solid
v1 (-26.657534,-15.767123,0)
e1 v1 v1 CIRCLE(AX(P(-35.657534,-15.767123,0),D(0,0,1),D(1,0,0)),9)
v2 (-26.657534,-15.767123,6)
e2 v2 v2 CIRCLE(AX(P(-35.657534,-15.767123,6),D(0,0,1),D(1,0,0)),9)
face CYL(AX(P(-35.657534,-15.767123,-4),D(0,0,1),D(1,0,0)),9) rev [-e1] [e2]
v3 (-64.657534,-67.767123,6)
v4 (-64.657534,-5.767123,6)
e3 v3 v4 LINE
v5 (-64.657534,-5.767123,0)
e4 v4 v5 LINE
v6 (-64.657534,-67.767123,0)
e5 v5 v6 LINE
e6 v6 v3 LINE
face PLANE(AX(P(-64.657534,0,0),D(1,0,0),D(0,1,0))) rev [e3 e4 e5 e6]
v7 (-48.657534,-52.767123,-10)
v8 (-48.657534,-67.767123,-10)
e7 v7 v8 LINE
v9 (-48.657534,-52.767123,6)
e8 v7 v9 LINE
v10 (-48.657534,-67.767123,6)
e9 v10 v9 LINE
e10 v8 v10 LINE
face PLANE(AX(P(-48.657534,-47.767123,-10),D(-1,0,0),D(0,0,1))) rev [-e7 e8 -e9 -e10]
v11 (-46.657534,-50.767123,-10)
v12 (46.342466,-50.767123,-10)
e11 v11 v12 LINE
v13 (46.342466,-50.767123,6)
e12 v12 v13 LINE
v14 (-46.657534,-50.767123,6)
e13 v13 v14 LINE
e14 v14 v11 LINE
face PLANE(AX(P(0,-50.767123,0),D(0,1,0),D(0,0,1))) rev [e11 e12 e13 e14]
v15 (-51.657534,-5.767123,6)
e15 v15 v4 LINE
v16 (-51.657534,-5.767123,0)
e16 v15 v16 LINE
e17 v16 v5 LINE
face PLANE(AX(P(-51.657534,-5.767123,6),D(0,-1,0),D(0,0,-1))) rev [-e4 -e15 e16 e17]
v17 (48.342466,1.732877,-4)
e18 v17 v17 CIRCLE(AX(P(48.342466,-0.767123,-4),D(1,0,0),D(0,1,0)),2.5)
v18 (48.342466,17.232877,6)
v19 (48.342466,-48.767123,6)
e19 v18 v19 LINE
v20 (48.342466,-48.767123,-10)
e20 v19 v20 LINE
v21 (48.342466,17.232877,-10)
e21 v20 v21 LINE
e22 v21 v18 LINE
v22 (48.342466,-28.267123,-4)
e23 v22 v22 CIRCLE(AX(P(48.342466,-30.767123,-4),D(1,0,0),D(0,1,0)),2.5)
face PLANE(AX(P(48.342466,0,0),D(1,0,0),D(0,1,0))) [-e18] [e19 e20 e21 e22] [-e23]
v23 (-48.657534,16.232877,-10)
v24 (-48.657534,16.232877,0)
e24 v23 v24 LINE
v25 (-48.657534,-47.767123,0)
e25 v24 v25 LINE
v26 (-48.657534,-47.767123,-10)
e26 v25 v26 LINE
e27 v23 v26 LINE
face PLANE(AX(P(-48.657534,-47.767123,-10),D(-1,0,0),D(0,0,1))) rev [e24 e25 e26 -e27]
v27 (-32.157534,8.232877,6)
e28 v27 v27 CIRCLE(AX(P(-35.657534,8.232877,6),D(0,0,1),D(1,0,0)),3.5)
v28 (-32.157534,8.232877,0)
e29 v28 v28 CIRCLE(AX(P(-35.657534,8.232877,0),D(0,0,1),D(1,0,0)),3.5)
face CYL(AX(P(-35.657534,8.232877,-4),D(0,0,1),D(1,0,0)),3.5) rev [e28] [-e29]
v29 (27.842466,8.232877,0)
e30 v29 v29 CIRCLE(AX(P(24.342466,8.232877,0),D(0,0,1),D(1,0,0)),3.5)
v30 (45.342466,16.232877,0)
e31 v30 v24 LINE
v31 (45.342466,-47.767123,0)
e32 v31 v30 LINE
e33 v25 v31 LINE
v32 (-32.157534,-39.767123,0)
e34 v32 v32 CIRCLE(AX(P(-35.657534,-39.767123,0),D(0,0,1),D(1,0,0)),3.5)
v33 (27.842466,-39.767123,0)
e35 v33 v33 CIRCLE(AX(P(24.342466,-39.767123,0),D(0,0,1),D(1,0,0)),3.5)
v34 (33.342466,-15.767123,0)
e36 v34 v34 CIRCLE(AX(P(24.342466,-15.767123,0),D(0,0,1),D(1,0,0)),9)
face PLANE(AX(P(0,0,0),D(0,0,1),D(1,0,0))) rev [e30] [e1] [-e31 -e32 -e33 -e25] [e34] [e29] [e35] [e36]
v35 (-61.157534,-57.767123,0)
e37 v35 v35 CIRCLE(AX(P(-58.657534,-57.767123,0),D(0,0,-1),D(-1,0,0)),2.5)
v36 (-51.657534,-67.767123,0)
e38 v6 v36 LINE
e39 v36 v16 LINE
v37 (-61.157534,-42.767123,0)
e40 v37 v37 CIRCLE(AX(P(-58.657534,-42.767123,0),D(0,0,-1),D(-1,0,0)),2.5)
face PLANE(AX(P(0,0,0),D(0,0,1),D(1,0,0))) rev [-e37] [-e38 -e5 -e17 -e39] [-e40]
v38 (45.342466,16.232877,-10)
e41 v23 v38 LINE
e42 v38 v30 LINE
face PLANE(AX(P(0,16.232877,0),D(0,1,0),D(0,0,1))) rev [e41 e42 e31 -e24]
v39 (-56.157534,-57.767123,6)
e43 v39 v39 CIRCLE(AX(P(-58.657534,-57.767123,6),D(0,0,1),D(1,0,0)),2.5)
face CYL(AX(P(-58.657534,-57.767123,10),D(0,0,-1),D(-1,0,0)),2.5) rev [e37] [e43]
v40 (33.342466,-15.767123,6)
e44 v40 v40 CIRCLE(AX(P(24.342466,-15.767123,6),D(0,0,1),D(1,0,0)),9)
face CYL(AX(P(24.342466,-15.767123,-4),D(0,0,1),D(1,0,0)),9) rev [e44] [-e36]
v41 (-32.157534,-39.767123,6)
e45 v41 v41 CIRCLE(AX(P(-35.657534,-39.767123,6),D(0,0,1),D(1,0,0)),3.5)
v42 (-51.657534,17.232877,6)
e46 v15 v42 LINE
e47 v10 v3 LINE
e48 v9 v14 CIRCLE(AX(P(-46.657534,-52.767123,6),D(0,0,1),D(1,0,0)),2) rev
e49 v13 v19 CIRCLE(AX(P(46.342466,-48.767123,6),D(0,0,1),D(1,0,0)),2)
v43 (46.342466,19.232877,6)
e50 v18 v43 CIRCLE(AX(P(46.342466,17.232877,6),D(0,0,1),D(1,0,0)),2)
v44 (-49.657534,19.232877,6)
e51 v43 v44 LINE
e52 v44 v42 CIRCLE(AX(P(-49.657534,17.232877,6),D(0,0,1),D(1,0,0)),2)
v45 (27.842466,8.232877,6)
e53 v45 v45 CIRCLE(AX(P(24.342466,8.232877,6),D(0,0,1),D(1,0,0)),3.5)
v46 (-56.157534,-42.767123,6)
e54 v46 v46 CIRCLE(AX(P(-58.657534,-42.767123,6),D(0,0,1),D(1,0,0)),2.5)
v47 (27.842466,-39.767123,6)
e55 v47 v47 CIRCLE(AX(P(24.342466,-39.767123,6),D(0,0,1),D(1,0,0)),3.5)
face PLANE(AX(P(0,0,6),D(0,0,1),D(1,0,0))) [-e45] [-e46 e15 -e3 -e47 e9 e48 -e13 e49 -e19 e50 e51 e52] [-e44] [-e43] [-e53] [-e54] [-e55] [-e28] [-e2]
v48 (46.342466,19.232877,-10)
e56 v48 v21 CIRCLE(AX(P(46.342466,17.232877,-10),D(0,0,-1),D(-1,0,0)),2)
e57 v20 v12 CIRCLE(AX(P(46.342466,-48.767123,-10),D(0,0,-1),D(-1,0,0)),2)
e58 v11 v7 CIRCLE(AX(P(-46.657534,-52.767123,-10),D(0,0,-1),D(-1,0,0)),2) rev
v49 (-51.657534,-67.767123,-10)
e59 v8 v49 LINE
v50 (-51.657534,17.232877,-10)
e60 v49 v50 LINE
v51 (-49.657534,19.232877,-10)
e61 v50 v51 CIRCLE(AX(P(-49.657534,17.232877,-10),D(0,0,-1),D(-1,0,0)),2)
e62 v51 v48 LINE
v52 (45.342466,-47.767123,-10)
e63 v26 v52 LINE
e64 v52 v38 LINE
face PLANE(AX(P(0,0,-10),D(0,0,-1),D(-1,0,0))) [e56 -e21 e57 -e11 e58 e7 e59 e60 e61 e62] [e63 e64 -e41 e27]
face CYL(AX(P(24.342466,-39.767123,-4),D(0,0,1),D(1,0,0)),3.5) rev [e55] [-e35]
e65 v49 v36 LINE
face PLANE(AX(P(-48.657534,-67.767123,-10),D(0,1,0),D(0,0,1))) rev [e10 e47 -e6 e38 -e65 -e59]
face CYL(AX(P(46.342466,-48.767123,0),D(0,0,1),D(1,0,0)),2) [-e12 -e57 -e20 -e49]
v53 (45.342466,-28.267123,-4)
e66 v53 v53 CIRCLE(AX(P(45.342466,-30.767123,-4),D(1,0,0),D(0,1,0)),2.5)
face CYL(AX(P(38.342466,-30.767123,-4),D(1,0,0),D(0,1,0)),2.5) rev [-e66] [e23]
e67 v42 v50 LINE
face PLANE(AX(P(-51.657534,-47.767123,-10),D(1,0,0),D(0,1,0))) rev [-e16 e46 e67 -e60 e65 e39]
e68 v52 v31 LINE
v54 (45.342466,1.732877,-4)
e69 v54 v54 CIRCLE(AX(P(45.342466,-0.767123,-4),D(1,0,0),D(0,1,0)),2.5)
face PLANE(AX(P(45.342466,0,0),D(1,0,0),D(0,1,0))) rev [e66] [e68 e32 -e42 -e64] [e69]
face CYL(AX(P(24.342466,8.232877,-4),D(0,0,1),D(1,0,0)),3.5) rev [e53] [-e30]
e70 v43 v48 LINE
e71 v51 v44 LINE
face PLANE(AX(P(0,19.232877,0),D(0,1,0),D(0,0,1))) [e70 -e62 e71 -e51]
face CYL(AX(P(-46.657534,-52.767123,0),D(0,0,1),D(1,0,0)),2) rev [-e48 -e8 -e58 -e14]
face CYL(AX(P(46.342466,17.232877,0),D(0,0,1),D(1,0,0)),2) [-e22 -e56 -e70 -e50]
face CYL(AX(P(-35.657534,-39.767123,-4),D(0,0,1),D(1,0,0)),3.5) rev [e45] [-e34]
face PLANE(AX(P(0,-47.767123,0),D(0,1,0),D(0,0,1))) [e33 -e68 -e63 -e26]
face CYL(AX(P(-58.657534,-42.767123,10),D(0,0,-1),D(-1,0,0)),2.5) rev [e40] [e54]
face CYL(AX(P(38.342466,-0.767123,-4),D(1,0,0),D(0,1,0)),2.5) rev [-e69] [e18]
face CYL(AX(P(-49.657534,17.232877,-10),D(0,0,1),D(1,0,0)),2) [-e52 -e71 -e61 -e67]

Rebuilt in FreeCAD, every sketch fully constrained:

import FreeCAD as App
import Part
import Sketcher
from FreeCAD import Vector


def edges_at(feature, points):
    """Names of the edges that pass closest to the given points."""
    edges = feature.Shape.Edges
    near = lambda p: min(range(len(edges)), key=lambda i: edges[i].distToShape(Part.Vertex(*p))[0])
    return sorted({f"Edge{near(p) + 1}" for p in points})

doc = App.newDocument("Part")
params = doc.addObject("Spreadsheet::Sheet", "Params")
for row, (alias, value) in enumerate([
    ("sketch1_width", "100 mm"),
    ("sketch1_height", "64 mm"),
    ("pad1_length", "6 mm"),
    ("sketch2_diameter", "18 mm"),
    ("sketch2_diameter2", "7 mm"),
    ("pocket1_length", "10 mm"),
    ("linearpattern_pitch", "60 mm"),
    ("sketch3_width", "3 mm"),
    ("sketch3_height", "84 mm"),
    ("pad2_length", "10 mm"),
    ("sketch4_width", "6 mm"),
    ("pad3_length", "20 mm"),
    ("sketch5_width", "97 mm"),
    ("sketch5_height", "16 mm"),
    ("pad4_length", "3 mm"),
    ("linearpattern2_pitch", "67 mm"),
    ("sketch6_width", "70 mm"),
    ("sketch6_height", "16 mm"),
    ("pad5_length", "3 mm"),
    ("sketch7_height", "22 mm"),
    ("pocket2_length", "6 mm"),
    ("sketch8_width", "62 mm"),
    ("sketch8_height", "6 mm"),
    ("pad6_length", "10 mm"),
    ("sketch9_diameter", "5 mm"),
    ("pocket3_length", "10 mm"),
    ("linearpattern3_pitch", "15 mm"),
    ("fillet_radius", "2 mm"),
    ("sketch10_diameter", "5 mm"),
    ("pocket4_length", "10 mm"),
    ("linearpattern4_pitch", "30 mm"),
], start=1):
    params.set(f"A{row}", alias)
    params.set(f"B{row}", "=" + value)
    params.setAlias(f"B{row}", alias)

body = doc.addObject("PartDesign::Body", "Body")

sketch1 = doc.addObject("Sketcher::SketchObject", "Sketch")
body.addObject(sketch1)
sketch1.AttachmentSupport = (doc.XY_Plane, [""])
sketch1.MapMode = "FlatFace"
sketch1.addGeometry(Part.LineSegment(Vector(-54.657534, 16.232877, 0), Vector(-54.657534, -47.767123, 0)), False)
sketch1.addGeometry(Part.LineSegment(Vector(-54.657534, -47.767123, 0), Vector(45.342466, -47.767123, 0)), False)
sketch1.addGeometry(Part.LineSegment(Vector(45.342466, -47.767123, 0), Vector(45.342466, 16.232877, 0)), False)
sketch1.addGeometry(Part.LineSegment(Vector(45.342466, 16.232877, 0), Vector(-54.657534, 16.232877, 0)), False)
sketch1.addConstraint(Sketcher.Constraint("Coincident", 0, 2, 1, 1))
sketch1.addConstraint(Sketcher.Constraint("Coincident", 1, 2, 2, 1))
sketch1.addConstraint(Sketcher.Constraint("Coincident", 2, 2, 3, 1))
sketch1.addConstraint(Sketcher.Constraint("Coincident", 3, 2, 0, 1))
sketch1.addConstraint(Sketcher.Constraint("Vertical", 0))
sketch1.addConstraint(Sketcher.Constraint("Horizontal", 1))
sketch1.addConstraint(Sketcher.Constraint("Vertical", 2))
sketch1.addConstraint(Sketcher.Constraint("Horizontal", 3))
sketch1.addConstraint(Sketcher.Constraint("DistanceX", 1, 1, 1, 2, 100.0))
sketch1.addConstraint(Sketcher.Constraint("DistanceY", 0, 2, 0, 1, 64.0))
sketch1.addConstraint(Sketcher.Constraint("DistanceX", 0, 2, -1, 1, 54.657534))
sketch1.addConstraint(Sketcher.Constraint("DistanceY", 0, 2, -1, 1, 47.767123))
sketch1.setExpression("Constraints[8]", "Params.sketch1_width")
sketch1.setExpression("Constraints[9]", "Params.sketch1_height")
pad1 = doc.addObject("PartDesign::Pad", "Pad")
body.addObject(pad1)
pad1.Profile = sketch1
pad1.setExpression("Length", "Params.pad1_length")

sketch2 = doc.addObject("Sketcher::SketchObject", "Sketch001")
body.addObject(sketch2)
sketch2.AttachmentSupport = (doc.XY_Plane, [""])
sketch2.MapMode = "FlatFace"
sketch2.AttachmentOffset = App.Placement(Vector(0, 0, 6), App.Rotation())
sketch2.addGeometry(Part.Circle(Vector(-35.657534, -15.767123, 0), Vector(0, 0, 1), 9), False)
sketch2.addGeometry(Part.Circle(Vector(-35.657534, 8.232877, 0), Vector(0, 0, 1), 3.5), False)
sketch2.addGeometry(Part.Circle(Vector(-35.657534, -39.767123, 0), Vector(0, 0, 1), 3.5), False)
sketch2.addConstraint(Sketcher.Constraint("Equal", 1, 2))
sketch2.addConstraint(Sketcher.Constraint("Vertical", 0, 3, 1, 3))
sketch2.addConstraint(Sketcher.Constraint("Vertical", 1, 3, 2, 3))
sketch2.addConstraint(Sketcher.Constraint("Diameter", 0, 18.0))
sketch2.addConstraint(Sketcher.Constraint("Diameter", 1, 7.0))
sketch2.addConstraint(Sketcher.Constraint("DistanceY", 0, 3, 1, 3, 24.0))
sketch2.addConstraint(Sketcher.Constraint("DistanceY", 2, 3, 0, 3, 24.0))
sketch2.addConstraint(Sketcher.Constraint("DistanceX", 0, 3, -1, 1, 35.657534))
sketch2.addConstraint(Sketcher.Constraint("DistanceY", 0, 3, -1, 1, 15.767123))
sketch2.setExpression("Constraints[3]", "Params.sketch2_diameter")
sketch2.setExpression("Constraints[4]", "Params.sketch2_diameter2")
pocket1 = doc.addObject("PartDesign::Pocket", "Pocket")
body.addObject(pocket1)
pocket1.Profile = sketch2
pocket1.setExpression("Length", "Params.pocket1_length")
doc.recompute()

linearpattern = doc.addObject("PartDesign::LinearPattern", "LinearPattern")
body.addObject(linearpattern)
linearpattern.Originals = [pocket1]
linearpattern.Direction = (doc.X_Axis, [""])
linearpattern.Mode = "offset"
linearpattern.setExpression("Offset", "Params.linearpattern_pitch")
linearpattern.Occurrences = 2
body.Tip = linearpattern

sketch3 = doc.addObject("Sketcher::SketchObject", "Sketch002")
body.addObject(sketch3)
sketch3.AttachmentSupport = (doc.XY_Plane, [""])
sketch3.MapMode = "FlatFace"
sketch3.addGeometry(Part.LineSegment(Vector(-48.657534, 16.232877, 0), Vector(-48.657534, -67.767123, 0)), False)
sketch3.addGeometry(Part.LineSegment(Vector(-48.657534, -67.767123, 0), Vector(-51.657534, -67.767123, 0)), False)
sketch3.addGeometry(Part.LineSegment(Vector(-51.657534, -67.767123, 0), Vector(-51.657534, 16.232877, 0)), False)
sketch3.addGeometry(Part.LineSegment(Vector(-51.657534, 16.232877, 0), Vector(-48.657534, 16.232877, 0)), False)
sketch3.addConstraint(Sketcher.Constraint("Coincident", 0, 2, 1, 1))
sketch3.addConstraint(Sketcher.Constraint("Coincident", 1, 2, 2, 1))
sketch3.addConstraint(Sketcher.Constraint("Coincident", 2, 2, 3, 1))
sketch3.addConstraint(Sketcher.Constraint("Coincident", 3, 2, 0, 1))
sketch3.addConstraint(Sketcher.Constraint("Vertical", 0))
sketch3.addConstraint(Sketcher.Constraint("Horizontal", 1))
sketch3.addConstraint(Sketcher.Constraint("Vertical", 2))
sketch3.addConstraint(Sketcher.Constraint("Horizontal", 3))
sketch3.addConstraint(Sketcher.Constraint("DistanceX", 1, 2, 1, 1, 3.0))
sketch3.addConstraint(Sketcher.Constraint("DistanceY", 0, 2, 0, 1, 84.0))
sketch3.addConstraint(Sketcher.Constraint("DistanceX", 0, 2, -1, 1, 48.657534))
sketch3.addConstraint(Sketcher.Constraint("DistanceY", 0, 2, -1, 1, 67.767123))
sketch3.setExpression("Constraints[8]", "Params.sketch3_width")
sketch3.setExpression("Constraints[9]", "Params.sketch3_height")
pad2 = doc.addObject("PartDesign::Pad", "Pad001")
body.addObject(pad2)
pad2.Profile = sketch3
pad2.setExpression("Length", "Params.pad2_length")
pad2.Reversed = True

sketch4 = doc.addObject("Sketcher::SketchObject", "Sketch003")
body.addObject(sketch4)
sketch4.AttachmentSupport = (doc.XZ_Plane, [""])
sketch4.MapMode = "FlatFace"
sketch4.AttachmentOffset = App.Placement(Vector(0, 0, 47.767123), App.Rotation())
sketch4.addGeometry(Part.LineSegment(Vector(-48.657534, 0, 0), Vector(-48.657534, 6, 0)), False)
sketch4.addGeometry(Part.LineSegment(Vector(-48.657534, 6, 0), Vector(-54.657534, 6, 0)), False)
sketch4.addGeometry(Part.LineSegment(Vector(-54.657534, 6, 0), Vector(-54.657534, 0, 0)), False)
sketch4.addGeometry(Part.LineSegment(Vector(-54.657534, 0, 0), Vector(-48.657534, 0, 0)), False)
sketch4.addConstraint(Sketcher.Constraint("Coincident", 0, 2, 1, 1))
sketch4.addConstraint(Sketcher.Constraint("Coincident", 1, 2, 2, 1))
sketch4.addConstraint(Sketcher.Constraint("Coincident", 2, 2, 3, 1))
sketch4.addConstraint(Sketcher.Constraint("Coincident", 3, 2, 0, 1))
sketch4.addConstraint(Sketcher.Constraint("Vertical", 0))
sketch4.addConstraint(Sketcher.Constraint("Horizontal", 1))
sketch4.addConstraint(Sketcher.Constraint("Vertical", 2))
sketch4.addConstraint(Sketcher.Constraint("Horizontal", 3))
sketch4.addConstraint(Sketcher.Constraint("PointOnObject", 2, 2, -1))
sketch4.addConstraint(Sketcher.Constraint("Equal", 3, 0))
sketch4.addConstraint(Sketcher.Constraint("DistanceX", 1, 2, 1, 1, 6.0))
sketch4.addConstraint(Sketcher.Constraint("DistanceX", 0, 2, -1, 1, 48.657534))
sketch4.setExpression("Constraints[10]", "Params.sketch4_width")
pad3 = doc.addObject("PartDesign::Pad", "Pad002")
body.addObject(pad3)
pad3.Profile = sketch4
pad3.setExpression("Length", "Params.pad3_length")

sketch5 = doc.addObject("Sketcher::SketchObject", "Sketch004")
body.addObject(sketch5)
sketch5.AttachmentSupport = (doc.XZ_Plane, [""])
sketch5.MapMode = "FlatFace"
sketch5.AttachmentOffset = App.Placement(Vector(0, 0, 47.767123), App.Rotation())
sketch5.addGeometry(Part.LineSegment(Vector(45.342466, -10, 0), Vector(45.342466, 6, 0)), False)
sketch5.addGeometry(Part.LineSegment(Vector(45.342466, 6, 0), Vector(-51.657534, 6, 0)), False)
sketch5.addGeometry(Part.LineSegment(Vector(-51.657534, 6, 0), Vector(-51.657534, -10, 0)), False)
sketch5.addGeometry(Part.LineSegment(Vector(-51.657534, -10, 0), Vector(45.342466, -10, 0)), False)
sketch5.addConstraint(Sketcher.Constraint("Coincident", 0, 2, 1, 1))
sketch5.addConstraint(Sketcher.Constraint("Coincident", 1, 2, 2, 1))
sketch5.addConstraint(Sketcher.Constraint("Coincident", 2, 2, 3, 1))
sketch5.addConstraint(Sketcher.Constraint("Coincident", 3, 2, 0, 1))
sketch5.addConstraint(Sketcher.Constraint("Vertical", 0))
sketch5.addConstraint(Sketcher.Constraint("Horizontal", 1))
sketch5.addConstraint(Sketcher.Constraint("Vertical", 2))
sketch5.addConstraint(Sketcher.Constraint("Horizontal", 3))
sketch5.addConstraint(Sketcher.Constraint("DistanceX", 1, 2, 1, 1, 97.0))
sketch5.addConstraint(Sketcher.Constraint("DistanceY", 0, 1, 0, 2, 16.0))
sketch5.addConstraint(Sketcher.Constraint("DistanceY", -1, 1, 0, 2, 6.0))
sketch5.addConstraint(Sketcher.Constraint("DistanceX", -1, 1, 0, 2, 45.342466))
sketch5.setExpression("Constraints[8]", "Params.sketch5_width")
sketch5.setExpression("Constraints[9]", "Params.sketch5_height")
pad4 = doc.addObject("PartDesign::Pad", "Pad003")
body.addObject(pad4)
pad4.Profile = sketch5
pad4.setExpression("Length", "Params.pad4_length")
doc.recompute()

linearpattern2 = doc.addObject("PartDesign::LinearPattern", "LinearPattern001")
body.addObject(linearpattern2)
linearpattern2.Originals = [pad4]
linearpattern2.Direction = (doc.Y_Axis, [""])
linearpattern2.Mode = "offset"
linearpattern2.setExpression("Offset", "Params.linearpattern2_pitch")
linearpattern2.Occurrences = 2
body.Tip = linearpattern2

sketch6 = doc.addObject("Sketcher::SketchObject", "Sketch005")
body.addObject(sketch6)
sketch6.AttachmentSupport = (doc.YZ_Plane, [""])
sketch6.MapMode = "FlatFace"
sketch6.AttachmentOffset = App.Placement(Vector(0, 0, 45.342466), App.Rotation())
sketch6.addGeometry(Part.LineSegment(Vector(19.232877, 6, 0), Vector(-50.767123, 6, 0)), False)
sketch6.addGeometry(Part.LineSegment(Vector(-50.767123, 6, 0), Vector(-50.767123, -10, 0)), False)
sketch6.addGeometry(Part.LineSegment(Vector(-50.767123, -10, 0), Vector(19.232877, -10, 0)), False)
sketch6.addGeometry(Part.LineSegment(Vector(19.232877, -10, 0), Vector(19.232877, 6, 0)), False)
sketch6.addConstraint(Sketcher.Constraint("Coincident", 0, 2, 1, 1))
sketch6.addConstraint(Sketcher.Constraint("Coincident", 1, 2, 2, 1))
sketch6.addConstraint(Sketcher.Constraint("Coincident", 2, 2, 3, 1))
sketch6.addConstraint(Sketcher.Constraint("Coincident", 3, 2, 0, 1))
sketch6.addConstraint(Sketcher.Constraint("Horizontal", 0))
sketch6.addConstraint(Sketcher.Constraint("Vertical", 1))
sketch6.addConstraint(Sketcher.Constraint("Horizontal", 2))
sketch6.addConstraint(Sketcher.Constraint("Vertical", 3))
sketch6.addConstraint(Sketcher.Constraint("DistanceX", 0, 2, 0, 1, 70.0))
sketch6.addConstraint(Sketcher.Constraint("DistanceY", 1, 2, 1, 1, 16.0))
sketch6.addConstraint(Sketcher.Constraint("DistanceY", -1, 1, 0, 2, 6.0))
sketch6.addConstraint(Sketcher.Constraint("DistanceX", 0, 2, -1, 1, 50.767123))
sketch6.setExpression("Constraints[8]", "Params.sketch6_width")
sketch6.setExpression("Constraints[9]", "Params.sketch6_height")
pad5 = doc.addObject("PartDesign::Pad", "Pad004")
body.addObject(pad5)
pad5.Profile = sketch6
pad5.setExpression("Length", "Params.pad5_length")

sketch7 = doc.addObject("Sketcher::SketchObject", "Sketch006")
body.addObject(sketch7)
sketch7.AttachmentSupport = (doc.XY_Plane, [""])
sketch7.MapMode = "FlatFace"
sketch7.addGeometry(Part.LineSegment(Vector(-51.657534, 16.232877, 0), Vector(-51.657534, -5.767123, 0)), False)
sketch7.addGeometry(Part.LineSegment(Vector(-51.657534, -5.767123, 0), Vector(-57.06277, -5.767123, 0)), False)
sketch7.addGeometry(Part.LineSegment(Vector(-57.06277, -5.767123, 0), Vector(-57.06277, 16.232877, 0)), False)
sketch7.addGeometry(Part.LineSegment(Vector(-57.06277, 16.232877, 0), Vector(-51.657534, 16.232877, 0)), False)
sketch7.addConstraint(Sketcher.Constraint("Coincident", 0, 2, 1, 1))
sketch7.addConstraint(Sketcher.Constraint("Coincident", 1, 2, 2, 1))
sketch7.addConstraint(Sketcher.Constraint("Coincident", 2, 2, 3, 1))
sketch7.addConstraint(Sketcher.Constraint("Coincident", 3, 2, 0, 1))
sketch7.addConstraint(Sketcher.Constraint("Vertical", 0))
sketch7.addConstraint(Sketcher.Constraint("Horizontal", 1))
sketch7.addConstraint(Sketcher.Constraint("Vertical", 2))
sketch7.addConstraint(Sketcher.Constraint("Horizontal", 3))
sketch7.addConstraint(Sketcher.Constraint("DistanceY", 0, 2, 0, 1, 22.0))
sketch7.addConstraint(Sketcher.Constraint("DistanceX", 1, 2, 1, 1, 5.405235))
sketch7.addConstraint(Sketcher.Constraint("DistanceX", 1, 2, -1, 1, 57.06277))
sketch7.addConstraint(Sketcher.Constraint("DistanceY", 0, 2, -1, 1, 5.767123))
sketch7.setExpression("Constraints[8]", "Params.sketch7_height")
pocket2 = doc.addObject("PartDesign::Pocket", "Pocket001")
body.addObject(pocket2)
pocket2.Profile = sketch7
pocket2.setExpression("Length", "Params.pocket2_length")
pocket2.Reversed = True

sketch8 = doc.addObject("Sketcher::SketchObject", "Sketch007")
body.addObject(sketch8)
sketch8.AttachmentSupport = (doc.YZ_Plane, [""])
sketch8.MapMode = "FlatFace"
sketch8.AttachmentOffset = App.Placement(Vector(0, 0, -54.657534), App.Rotation())
sketch8.addGeometry(Part.LineSegment(Vector(-5.767123, 0, 0), Vector(-67.767123, 0, 0)), False)
sketch8.addGeometry(Part.LineSegment(Vector(-67.767123, 0, 0), Vector(-67.767123, 6, 0)), False)
sketch8.addGeometry(Part.LineSegment(Vector(-67.767123, 6, 0), Vector(-5.767123, 6, 0)), False)
sketch8.addGeometry(Part.LineSegment(Vector(-5.767123, 6, 0), Vector(-5.767123, 0, 0)), False)
sketch8.addConstraint(Sketcher.Constraint("Coincident", 0, 2, 1, 1))
sketch8.addConstraint(Sketcher.Constraint("Coincident", 1, 2, 2, 1))
sketch8.addConstraint(Sketcher.Constraint("Coincident", 2, 2, 3, 1))
sketch8.addConstraint(Sketcher.Constraint("Coincident", 3, 2, 0, 1))
sketch8.addConstraint(Sketcher.Constraint("Horizontal", 0))
sketch8.addConstraint(Sketcher.Constraint("Vertical", 1))
sketch8.addConstraint(Sketcher.Constraint("Horizontal", 2))
sketch8.addConstraint(Sketcher.Constraint("Vertical", 3))
sketch8.addConstraint(Sketcher.Constraint("PointOnObject", 0, 2, -1))
sketch8.addConstraint(Sketcher.Constraint("DistanceX", 0, 2, 0, 1, 62.0))
sketch8.addConstraint(Sketcher.Constraint("DistanceY", 1, 1, 1, 2, 6.0))
sketch8.addConstraint(Sketcher.Constraint("DistanceX", 0, 2, -1, 1, 67.767123))
sketch8.setExpression("Constraints[9]", "Params.sketch8_width")
sketch8.setExpression("Constraints[10]", "Params.sketch8_height")
pad6 = doc.addObject("PartDesign::Pad", "Pad005")
body.addObject(pad6)
pad6.Profile = sketch8
pad6.setExpression("Length", "Params.pad6_length")
pad6.Reversed = True

sketch9 = doc.addObject("Sketcher::SketchObject", "Sketch008")
body.addObject(sketch9)
sketch9.AttachmentSupport = (doc.XY_Plane, [""])
sketch9.MapMode = "FlatFace"
sketch9.addGeometry(Part.Circle(Vector(-58.657534, -57.767123, 0), Vector(0, 0, 1), 2.5), False)
sketch9.addConstraint(Sketcher.Constraint("Diameter", 0, 5.0))
sketch9.addConstraint(Sketcher.Constraint("DistanceX", 0, 3, -1, 1, 58.657534))
sketch9.addConstraint(Sketcher.Constraint("DistanceY", 0, 3, -1, 1, 57.767123))
sketch9.setExpression("Constraints[0]", "Params.sketch9_diameter")
pocket3 = doc.addObject("PartDesign::Pocket", "Pocket002")
body.addObject(pocket3)
pocket3.Profile = sketch9
pocket3.setExpression("Length", "Params.pocket3_length")
pocket3.Reversed = True
doc.recompute()

linearpattern3 = doc.addObject("PartDesign::LinearPattern", "LinearPattern002")
body.addObject(linearpattern3)
linearpattern3.Originals = [pocket3]
linearpattern3.Direction = (doc.Y_Axis, [""])
linearpattern3.Mode = "offset"
linearpattern3.setExpression("Offset", "Params.linearpattern3_pitch")
linearpattern3.Occurrences = 2
body.Tip = linearpattern3
doc.recompute()

fillet = doc.addObject("PartDesign::Fillet", "Fillet")
body.addObject(fillet)
fillet.Base = (linearpattern3, edges_at(linearpattern3, [
    (-51.658, 19.233, -2),
    (48.342, -50.767, -2),
    (48.342, 19.233, -2),
    (-48.658, -50.767, -2),
]))
fillet.setExpression("Radius", "Params.fillet_radius")

sketch10 = doc.addObject("Sketcher::SketchObject", "Sketch009")
body.addObject(sketch10)
sketch10.AttachmentSupport = (doc.YZ_Plane, [""])
sketch10.MapMode = "FlatFace"
sketch10.AttachmentOffset = App.Placement(Vector(0, 0, 48.342466), App.Rotation())
sketch10.addGeometry(Part.Circle(Vector(-0.767123, -4, 0), Vector(0, 0, 1), 2.5), False)
sketch10.addConstraint(Sketcher.Constraint("Diameter", 0, 5.0))
sketch10.addConstraint(Sketcher.Constraint("DistanceY", 0, 3, -1, 1, 4.0))
sketch10.addConstraint(Sketcher.Constraint("DistanceX", 0, 3, -1, 1, 0.767123))
sketch10.setExpression("Constraints[0]", "Params.sketch10_diameter")
pocket4 = doc.addObject("PartDesign::Pocket", "Pocket003")
body.addObject(pocket4)
pocket4.Profile = sketch10
pocket4.setExpression("Length", "Params.pocket4_length")
doc.recompute()

linearpattern4 = doc.addObject("PartDesign::LinearPattern", "LinearPattern003")
body.addObject(linearpattern4)
linearpattern4.Originals = [pocket4]
linearpattern4.Direction = (doc.Y_Axis, [""])
linearpattern4.Mode = "offset"
linearpattern4.setExpression("Offset", "Params.linearpattern4_pitch")
linearpattern4.Occurrences = 2
linearpattern4.Reversed = True
body.Tip = linearpattern4

doc.recompute()
